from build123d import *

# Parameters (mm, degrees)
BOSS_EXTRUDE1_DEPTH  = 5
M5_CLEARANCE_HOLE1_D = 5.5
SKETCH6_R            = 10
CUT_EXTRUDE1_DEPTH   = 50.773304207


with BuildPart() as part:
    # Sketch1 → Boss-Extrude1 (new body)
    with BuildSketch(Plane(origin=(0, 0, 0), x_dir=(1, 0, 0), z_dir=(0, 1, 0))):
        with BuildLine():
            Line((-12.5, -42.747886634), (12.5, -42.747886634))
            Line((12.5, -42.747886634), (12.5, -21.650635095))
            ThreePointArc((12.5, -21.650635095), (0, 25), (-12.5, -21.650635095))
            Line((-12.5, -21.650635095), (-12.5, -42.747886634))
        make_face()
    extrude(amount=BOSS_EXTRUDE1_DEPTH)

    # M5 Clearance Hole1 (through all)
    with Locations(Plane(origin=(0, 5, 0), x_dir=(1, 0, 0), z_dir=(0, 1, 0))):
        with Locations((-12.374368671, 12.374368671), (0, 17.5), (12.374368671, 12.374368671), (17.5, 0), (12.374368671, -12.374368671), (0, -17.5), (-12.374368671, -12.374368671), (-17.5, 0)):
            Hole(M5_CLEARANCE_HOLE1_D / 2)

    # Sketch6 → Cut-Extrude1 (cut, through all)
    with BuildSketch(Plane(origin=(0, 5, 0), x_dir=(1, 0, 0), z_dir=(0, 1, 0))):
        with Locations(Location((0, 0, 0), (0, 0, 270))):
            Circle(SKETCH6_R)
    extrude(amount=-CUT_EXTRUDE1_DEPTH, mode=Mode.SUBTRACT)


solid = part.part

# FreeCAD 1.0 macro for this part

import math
import FreeCAD as App
import Part
import Sketcher
Q = App.Units.Quantity

doc = App.newDocument("Part")
body = doc.addObject("PartDesign::Body", "Body")

# Sketch on XZ plane
sketch1 = body.newObject("Sketcher::SketchObject", "Sketch")
sketch1.AttachmentSupport = (doc.getObject("XZ_Plane"), [""])
sketch1.MapMode = "FlatFace"
sketch1.addGeometry([
    Part.LineSegment(App.Vector(-12.5, 42.747887, 0), App.Vector(12.5, 42.747887, 0)),
    Part.LineSegment(App.Vector(12.5, 42.747887, 0), App.Vector(12.5, 21.650635, 0)),
    Part.ArcOfCircle(Part.Circle(App.Vector(0, 0, 0), App.Vector(0, 0, 1), 25), math.radians(120), math.radians(420)),
    Part.LineSegment(App.Vector(-12.5, 21.650635, 0), App.Vector(-12.5, 42.747887, 0)),
], False)
sketch1.addConstraint([
    Sketcher.Constraint("Coincident", 0, 2, 1, 1),
    Sketcher.Constraint("Coincident", 1, 2, 2, 2),
    Sketcher.Constraint("Coincident", 2, 1, 3, 1),
    Sketcher.Constraint("Coincident", 3, 2, 0, 1),
    Sketcher.Constraint("Horizontal", 0),
    Sketcher.Constraint("Vertical", 1),
    Sketcher.Constraint("Vertical", 3),
    Sketcher.Constraint("Coincident", 2, 3, -1, 1),
    Sketcher.Constraint("Horizontal", 1, 2, 2, 1),
    Sketcher.Constraint("Radius", 2, Q("25 mm")),
    Sketcher.Constraint("DistanceX", 0, 1, 0, 2, Q("25 mm")),
    Sketcher.Constraint("DistanceY", 1, 2, 1, 1, Q("21.097252 mm")),
])
pad1 = body.newObject("PartDesign::Pad", "Pad")
pad1.Profile = sketch1
pad1.Length = 5
pad1.Reversed = True

# Sketch on XZ plane
sketch2 = body.newObject("Sketcher::SketchObject", "Sketch001")
sketch2.AttachmentSupport = (doc.getObject("XZ_Plane"), [""])
sketch2.MapMode = "FlatFace"
sketch2.AttachmentOffset = App.Placement(App.Vector(0, 0, -5), App.Rotation())
sketch2.addGeometry([
    Part.Circle(App.Vector(-12.374369, -12.374369, 0), App.Vector(0, 0, 1), 2.75),  # 0
    Part.Circle(App.Vector(0, -17.5, 0), App.Vector(0, 0, 1), 2.75),  # 1
    Part.Circle(App.Vector(12.374369, -12.374369, 0), App.Vector(0, 0, 1), 2.75),  # 2
    Part.Circle(App.Vector(17.5, 0, 0), App.Vector(0, 0, 1), 2.75),  # 3
    Part.Circle(App.Vector(12.374369, 12.374369, 0), App.Vector(0, 0, 1), 2.75),  # 4
    Part.Circle(App.Vector(0, 17.5, 0), App.Vector(0, 0, 1), 2.75),  # 5
    Part.Circle(App.Vector(-12.374369, 12.374369, 0), App.Vector(0, 0, 1), 2.75),  # 6
    Part.Circle(App.Vector(-17.5, 0, 0), App.Vector(0, 0, 1), 2.75),  # 7
], False)
sketch2.addConstraint([
    Sketcher.Constraint("Equal", 0, 1),
    Sketcher.Constraint("Equal", 1, 2),
    Sketcher.Constraint("Equal", 2, 3),
    Sketcher.Constraint("Equal", 3, 4),
    Sketcher.Constraint("Equal", 4, 5),
    Sketcher.Constraint("Equal", 5, 6),
    Sketcher.Constraint("Equal", 6, 7),
    Sketcher.Constraint("Symmetric", 0, 3, 4, 3, -1, 1),
    Sketcher.Constraint("Symmetric", 1, 3, 5, 3, -1, 1),
    Sketcher.Constraint("Symmetric", 2, 3, 6, 3, -1, 1),
    Sketcher.Constraint("Symmetric", 3, 3, 7, 3, -1, 1),
    Sketcher.Constraint("Symmetric", 0, 3, 2, 3, -2),
    Sketcher.Constraint("PointOnObject", 1, 3, -2),
    Sketcher.Constraint("PointOnObject", 3, 3, -1),
    Sketcher.Constraint("Diameter", 0, Q("5.5 mm")),
    Sketcher.Constraint("DistanceY", 1, 3, 5, 3, Q("35 mm")),
    Sketcher.Constraint("DistanceX", -1, 1, 3, 3, Q("17.5 mm")),
    Sketcher.Constraint("DistanceX", 0, 3, -1, 1, Q("12.374369 mm")),
    Sketcher.Constraint("DistanceY", 0, 3, -1, 1, Q("12.374369 mm")),
])
doc.recompute()
hole = body.newObject("PartDesign::Hole", "Hole")
hole.Profile = sketch2
hole.ThreadType = "None"
hole.Diameter = 5.5
hole.DepthType = "ThroughAll"
hole.Reversed = True

# Sketch on XZ plane
sketch3 = body.newObject("Sketcher::SketchObject", "Sketch002")
sketch3.AttachmentSupport = (doc.getObject("XZ_Plane"), [""])
sketch3.MapMode = "FlatFace"
sketch3.AttachmentOffset = App.Placement(App.Vector(0, 0, -5), App.Rotation())
sketch3.addGeometry(Part.Circle(App.Vector(0, 0, 0), App.Vector(0, 0, 1), 10), False)
sketch3.addConstraint([
    Sketcher.Constraint("Coincident", 0, 3, -1, 1),
    Sketcher.Constraint("Diameter", 0, Q("20 mm")),
])
pocket1 = body.newObject("PartDesign::Pocket", "Pocket")
pocket1.Profile = sketch3
pocket1.Type = "ThroughAll"
pocket1.Reversed = True

doc.recompute()
